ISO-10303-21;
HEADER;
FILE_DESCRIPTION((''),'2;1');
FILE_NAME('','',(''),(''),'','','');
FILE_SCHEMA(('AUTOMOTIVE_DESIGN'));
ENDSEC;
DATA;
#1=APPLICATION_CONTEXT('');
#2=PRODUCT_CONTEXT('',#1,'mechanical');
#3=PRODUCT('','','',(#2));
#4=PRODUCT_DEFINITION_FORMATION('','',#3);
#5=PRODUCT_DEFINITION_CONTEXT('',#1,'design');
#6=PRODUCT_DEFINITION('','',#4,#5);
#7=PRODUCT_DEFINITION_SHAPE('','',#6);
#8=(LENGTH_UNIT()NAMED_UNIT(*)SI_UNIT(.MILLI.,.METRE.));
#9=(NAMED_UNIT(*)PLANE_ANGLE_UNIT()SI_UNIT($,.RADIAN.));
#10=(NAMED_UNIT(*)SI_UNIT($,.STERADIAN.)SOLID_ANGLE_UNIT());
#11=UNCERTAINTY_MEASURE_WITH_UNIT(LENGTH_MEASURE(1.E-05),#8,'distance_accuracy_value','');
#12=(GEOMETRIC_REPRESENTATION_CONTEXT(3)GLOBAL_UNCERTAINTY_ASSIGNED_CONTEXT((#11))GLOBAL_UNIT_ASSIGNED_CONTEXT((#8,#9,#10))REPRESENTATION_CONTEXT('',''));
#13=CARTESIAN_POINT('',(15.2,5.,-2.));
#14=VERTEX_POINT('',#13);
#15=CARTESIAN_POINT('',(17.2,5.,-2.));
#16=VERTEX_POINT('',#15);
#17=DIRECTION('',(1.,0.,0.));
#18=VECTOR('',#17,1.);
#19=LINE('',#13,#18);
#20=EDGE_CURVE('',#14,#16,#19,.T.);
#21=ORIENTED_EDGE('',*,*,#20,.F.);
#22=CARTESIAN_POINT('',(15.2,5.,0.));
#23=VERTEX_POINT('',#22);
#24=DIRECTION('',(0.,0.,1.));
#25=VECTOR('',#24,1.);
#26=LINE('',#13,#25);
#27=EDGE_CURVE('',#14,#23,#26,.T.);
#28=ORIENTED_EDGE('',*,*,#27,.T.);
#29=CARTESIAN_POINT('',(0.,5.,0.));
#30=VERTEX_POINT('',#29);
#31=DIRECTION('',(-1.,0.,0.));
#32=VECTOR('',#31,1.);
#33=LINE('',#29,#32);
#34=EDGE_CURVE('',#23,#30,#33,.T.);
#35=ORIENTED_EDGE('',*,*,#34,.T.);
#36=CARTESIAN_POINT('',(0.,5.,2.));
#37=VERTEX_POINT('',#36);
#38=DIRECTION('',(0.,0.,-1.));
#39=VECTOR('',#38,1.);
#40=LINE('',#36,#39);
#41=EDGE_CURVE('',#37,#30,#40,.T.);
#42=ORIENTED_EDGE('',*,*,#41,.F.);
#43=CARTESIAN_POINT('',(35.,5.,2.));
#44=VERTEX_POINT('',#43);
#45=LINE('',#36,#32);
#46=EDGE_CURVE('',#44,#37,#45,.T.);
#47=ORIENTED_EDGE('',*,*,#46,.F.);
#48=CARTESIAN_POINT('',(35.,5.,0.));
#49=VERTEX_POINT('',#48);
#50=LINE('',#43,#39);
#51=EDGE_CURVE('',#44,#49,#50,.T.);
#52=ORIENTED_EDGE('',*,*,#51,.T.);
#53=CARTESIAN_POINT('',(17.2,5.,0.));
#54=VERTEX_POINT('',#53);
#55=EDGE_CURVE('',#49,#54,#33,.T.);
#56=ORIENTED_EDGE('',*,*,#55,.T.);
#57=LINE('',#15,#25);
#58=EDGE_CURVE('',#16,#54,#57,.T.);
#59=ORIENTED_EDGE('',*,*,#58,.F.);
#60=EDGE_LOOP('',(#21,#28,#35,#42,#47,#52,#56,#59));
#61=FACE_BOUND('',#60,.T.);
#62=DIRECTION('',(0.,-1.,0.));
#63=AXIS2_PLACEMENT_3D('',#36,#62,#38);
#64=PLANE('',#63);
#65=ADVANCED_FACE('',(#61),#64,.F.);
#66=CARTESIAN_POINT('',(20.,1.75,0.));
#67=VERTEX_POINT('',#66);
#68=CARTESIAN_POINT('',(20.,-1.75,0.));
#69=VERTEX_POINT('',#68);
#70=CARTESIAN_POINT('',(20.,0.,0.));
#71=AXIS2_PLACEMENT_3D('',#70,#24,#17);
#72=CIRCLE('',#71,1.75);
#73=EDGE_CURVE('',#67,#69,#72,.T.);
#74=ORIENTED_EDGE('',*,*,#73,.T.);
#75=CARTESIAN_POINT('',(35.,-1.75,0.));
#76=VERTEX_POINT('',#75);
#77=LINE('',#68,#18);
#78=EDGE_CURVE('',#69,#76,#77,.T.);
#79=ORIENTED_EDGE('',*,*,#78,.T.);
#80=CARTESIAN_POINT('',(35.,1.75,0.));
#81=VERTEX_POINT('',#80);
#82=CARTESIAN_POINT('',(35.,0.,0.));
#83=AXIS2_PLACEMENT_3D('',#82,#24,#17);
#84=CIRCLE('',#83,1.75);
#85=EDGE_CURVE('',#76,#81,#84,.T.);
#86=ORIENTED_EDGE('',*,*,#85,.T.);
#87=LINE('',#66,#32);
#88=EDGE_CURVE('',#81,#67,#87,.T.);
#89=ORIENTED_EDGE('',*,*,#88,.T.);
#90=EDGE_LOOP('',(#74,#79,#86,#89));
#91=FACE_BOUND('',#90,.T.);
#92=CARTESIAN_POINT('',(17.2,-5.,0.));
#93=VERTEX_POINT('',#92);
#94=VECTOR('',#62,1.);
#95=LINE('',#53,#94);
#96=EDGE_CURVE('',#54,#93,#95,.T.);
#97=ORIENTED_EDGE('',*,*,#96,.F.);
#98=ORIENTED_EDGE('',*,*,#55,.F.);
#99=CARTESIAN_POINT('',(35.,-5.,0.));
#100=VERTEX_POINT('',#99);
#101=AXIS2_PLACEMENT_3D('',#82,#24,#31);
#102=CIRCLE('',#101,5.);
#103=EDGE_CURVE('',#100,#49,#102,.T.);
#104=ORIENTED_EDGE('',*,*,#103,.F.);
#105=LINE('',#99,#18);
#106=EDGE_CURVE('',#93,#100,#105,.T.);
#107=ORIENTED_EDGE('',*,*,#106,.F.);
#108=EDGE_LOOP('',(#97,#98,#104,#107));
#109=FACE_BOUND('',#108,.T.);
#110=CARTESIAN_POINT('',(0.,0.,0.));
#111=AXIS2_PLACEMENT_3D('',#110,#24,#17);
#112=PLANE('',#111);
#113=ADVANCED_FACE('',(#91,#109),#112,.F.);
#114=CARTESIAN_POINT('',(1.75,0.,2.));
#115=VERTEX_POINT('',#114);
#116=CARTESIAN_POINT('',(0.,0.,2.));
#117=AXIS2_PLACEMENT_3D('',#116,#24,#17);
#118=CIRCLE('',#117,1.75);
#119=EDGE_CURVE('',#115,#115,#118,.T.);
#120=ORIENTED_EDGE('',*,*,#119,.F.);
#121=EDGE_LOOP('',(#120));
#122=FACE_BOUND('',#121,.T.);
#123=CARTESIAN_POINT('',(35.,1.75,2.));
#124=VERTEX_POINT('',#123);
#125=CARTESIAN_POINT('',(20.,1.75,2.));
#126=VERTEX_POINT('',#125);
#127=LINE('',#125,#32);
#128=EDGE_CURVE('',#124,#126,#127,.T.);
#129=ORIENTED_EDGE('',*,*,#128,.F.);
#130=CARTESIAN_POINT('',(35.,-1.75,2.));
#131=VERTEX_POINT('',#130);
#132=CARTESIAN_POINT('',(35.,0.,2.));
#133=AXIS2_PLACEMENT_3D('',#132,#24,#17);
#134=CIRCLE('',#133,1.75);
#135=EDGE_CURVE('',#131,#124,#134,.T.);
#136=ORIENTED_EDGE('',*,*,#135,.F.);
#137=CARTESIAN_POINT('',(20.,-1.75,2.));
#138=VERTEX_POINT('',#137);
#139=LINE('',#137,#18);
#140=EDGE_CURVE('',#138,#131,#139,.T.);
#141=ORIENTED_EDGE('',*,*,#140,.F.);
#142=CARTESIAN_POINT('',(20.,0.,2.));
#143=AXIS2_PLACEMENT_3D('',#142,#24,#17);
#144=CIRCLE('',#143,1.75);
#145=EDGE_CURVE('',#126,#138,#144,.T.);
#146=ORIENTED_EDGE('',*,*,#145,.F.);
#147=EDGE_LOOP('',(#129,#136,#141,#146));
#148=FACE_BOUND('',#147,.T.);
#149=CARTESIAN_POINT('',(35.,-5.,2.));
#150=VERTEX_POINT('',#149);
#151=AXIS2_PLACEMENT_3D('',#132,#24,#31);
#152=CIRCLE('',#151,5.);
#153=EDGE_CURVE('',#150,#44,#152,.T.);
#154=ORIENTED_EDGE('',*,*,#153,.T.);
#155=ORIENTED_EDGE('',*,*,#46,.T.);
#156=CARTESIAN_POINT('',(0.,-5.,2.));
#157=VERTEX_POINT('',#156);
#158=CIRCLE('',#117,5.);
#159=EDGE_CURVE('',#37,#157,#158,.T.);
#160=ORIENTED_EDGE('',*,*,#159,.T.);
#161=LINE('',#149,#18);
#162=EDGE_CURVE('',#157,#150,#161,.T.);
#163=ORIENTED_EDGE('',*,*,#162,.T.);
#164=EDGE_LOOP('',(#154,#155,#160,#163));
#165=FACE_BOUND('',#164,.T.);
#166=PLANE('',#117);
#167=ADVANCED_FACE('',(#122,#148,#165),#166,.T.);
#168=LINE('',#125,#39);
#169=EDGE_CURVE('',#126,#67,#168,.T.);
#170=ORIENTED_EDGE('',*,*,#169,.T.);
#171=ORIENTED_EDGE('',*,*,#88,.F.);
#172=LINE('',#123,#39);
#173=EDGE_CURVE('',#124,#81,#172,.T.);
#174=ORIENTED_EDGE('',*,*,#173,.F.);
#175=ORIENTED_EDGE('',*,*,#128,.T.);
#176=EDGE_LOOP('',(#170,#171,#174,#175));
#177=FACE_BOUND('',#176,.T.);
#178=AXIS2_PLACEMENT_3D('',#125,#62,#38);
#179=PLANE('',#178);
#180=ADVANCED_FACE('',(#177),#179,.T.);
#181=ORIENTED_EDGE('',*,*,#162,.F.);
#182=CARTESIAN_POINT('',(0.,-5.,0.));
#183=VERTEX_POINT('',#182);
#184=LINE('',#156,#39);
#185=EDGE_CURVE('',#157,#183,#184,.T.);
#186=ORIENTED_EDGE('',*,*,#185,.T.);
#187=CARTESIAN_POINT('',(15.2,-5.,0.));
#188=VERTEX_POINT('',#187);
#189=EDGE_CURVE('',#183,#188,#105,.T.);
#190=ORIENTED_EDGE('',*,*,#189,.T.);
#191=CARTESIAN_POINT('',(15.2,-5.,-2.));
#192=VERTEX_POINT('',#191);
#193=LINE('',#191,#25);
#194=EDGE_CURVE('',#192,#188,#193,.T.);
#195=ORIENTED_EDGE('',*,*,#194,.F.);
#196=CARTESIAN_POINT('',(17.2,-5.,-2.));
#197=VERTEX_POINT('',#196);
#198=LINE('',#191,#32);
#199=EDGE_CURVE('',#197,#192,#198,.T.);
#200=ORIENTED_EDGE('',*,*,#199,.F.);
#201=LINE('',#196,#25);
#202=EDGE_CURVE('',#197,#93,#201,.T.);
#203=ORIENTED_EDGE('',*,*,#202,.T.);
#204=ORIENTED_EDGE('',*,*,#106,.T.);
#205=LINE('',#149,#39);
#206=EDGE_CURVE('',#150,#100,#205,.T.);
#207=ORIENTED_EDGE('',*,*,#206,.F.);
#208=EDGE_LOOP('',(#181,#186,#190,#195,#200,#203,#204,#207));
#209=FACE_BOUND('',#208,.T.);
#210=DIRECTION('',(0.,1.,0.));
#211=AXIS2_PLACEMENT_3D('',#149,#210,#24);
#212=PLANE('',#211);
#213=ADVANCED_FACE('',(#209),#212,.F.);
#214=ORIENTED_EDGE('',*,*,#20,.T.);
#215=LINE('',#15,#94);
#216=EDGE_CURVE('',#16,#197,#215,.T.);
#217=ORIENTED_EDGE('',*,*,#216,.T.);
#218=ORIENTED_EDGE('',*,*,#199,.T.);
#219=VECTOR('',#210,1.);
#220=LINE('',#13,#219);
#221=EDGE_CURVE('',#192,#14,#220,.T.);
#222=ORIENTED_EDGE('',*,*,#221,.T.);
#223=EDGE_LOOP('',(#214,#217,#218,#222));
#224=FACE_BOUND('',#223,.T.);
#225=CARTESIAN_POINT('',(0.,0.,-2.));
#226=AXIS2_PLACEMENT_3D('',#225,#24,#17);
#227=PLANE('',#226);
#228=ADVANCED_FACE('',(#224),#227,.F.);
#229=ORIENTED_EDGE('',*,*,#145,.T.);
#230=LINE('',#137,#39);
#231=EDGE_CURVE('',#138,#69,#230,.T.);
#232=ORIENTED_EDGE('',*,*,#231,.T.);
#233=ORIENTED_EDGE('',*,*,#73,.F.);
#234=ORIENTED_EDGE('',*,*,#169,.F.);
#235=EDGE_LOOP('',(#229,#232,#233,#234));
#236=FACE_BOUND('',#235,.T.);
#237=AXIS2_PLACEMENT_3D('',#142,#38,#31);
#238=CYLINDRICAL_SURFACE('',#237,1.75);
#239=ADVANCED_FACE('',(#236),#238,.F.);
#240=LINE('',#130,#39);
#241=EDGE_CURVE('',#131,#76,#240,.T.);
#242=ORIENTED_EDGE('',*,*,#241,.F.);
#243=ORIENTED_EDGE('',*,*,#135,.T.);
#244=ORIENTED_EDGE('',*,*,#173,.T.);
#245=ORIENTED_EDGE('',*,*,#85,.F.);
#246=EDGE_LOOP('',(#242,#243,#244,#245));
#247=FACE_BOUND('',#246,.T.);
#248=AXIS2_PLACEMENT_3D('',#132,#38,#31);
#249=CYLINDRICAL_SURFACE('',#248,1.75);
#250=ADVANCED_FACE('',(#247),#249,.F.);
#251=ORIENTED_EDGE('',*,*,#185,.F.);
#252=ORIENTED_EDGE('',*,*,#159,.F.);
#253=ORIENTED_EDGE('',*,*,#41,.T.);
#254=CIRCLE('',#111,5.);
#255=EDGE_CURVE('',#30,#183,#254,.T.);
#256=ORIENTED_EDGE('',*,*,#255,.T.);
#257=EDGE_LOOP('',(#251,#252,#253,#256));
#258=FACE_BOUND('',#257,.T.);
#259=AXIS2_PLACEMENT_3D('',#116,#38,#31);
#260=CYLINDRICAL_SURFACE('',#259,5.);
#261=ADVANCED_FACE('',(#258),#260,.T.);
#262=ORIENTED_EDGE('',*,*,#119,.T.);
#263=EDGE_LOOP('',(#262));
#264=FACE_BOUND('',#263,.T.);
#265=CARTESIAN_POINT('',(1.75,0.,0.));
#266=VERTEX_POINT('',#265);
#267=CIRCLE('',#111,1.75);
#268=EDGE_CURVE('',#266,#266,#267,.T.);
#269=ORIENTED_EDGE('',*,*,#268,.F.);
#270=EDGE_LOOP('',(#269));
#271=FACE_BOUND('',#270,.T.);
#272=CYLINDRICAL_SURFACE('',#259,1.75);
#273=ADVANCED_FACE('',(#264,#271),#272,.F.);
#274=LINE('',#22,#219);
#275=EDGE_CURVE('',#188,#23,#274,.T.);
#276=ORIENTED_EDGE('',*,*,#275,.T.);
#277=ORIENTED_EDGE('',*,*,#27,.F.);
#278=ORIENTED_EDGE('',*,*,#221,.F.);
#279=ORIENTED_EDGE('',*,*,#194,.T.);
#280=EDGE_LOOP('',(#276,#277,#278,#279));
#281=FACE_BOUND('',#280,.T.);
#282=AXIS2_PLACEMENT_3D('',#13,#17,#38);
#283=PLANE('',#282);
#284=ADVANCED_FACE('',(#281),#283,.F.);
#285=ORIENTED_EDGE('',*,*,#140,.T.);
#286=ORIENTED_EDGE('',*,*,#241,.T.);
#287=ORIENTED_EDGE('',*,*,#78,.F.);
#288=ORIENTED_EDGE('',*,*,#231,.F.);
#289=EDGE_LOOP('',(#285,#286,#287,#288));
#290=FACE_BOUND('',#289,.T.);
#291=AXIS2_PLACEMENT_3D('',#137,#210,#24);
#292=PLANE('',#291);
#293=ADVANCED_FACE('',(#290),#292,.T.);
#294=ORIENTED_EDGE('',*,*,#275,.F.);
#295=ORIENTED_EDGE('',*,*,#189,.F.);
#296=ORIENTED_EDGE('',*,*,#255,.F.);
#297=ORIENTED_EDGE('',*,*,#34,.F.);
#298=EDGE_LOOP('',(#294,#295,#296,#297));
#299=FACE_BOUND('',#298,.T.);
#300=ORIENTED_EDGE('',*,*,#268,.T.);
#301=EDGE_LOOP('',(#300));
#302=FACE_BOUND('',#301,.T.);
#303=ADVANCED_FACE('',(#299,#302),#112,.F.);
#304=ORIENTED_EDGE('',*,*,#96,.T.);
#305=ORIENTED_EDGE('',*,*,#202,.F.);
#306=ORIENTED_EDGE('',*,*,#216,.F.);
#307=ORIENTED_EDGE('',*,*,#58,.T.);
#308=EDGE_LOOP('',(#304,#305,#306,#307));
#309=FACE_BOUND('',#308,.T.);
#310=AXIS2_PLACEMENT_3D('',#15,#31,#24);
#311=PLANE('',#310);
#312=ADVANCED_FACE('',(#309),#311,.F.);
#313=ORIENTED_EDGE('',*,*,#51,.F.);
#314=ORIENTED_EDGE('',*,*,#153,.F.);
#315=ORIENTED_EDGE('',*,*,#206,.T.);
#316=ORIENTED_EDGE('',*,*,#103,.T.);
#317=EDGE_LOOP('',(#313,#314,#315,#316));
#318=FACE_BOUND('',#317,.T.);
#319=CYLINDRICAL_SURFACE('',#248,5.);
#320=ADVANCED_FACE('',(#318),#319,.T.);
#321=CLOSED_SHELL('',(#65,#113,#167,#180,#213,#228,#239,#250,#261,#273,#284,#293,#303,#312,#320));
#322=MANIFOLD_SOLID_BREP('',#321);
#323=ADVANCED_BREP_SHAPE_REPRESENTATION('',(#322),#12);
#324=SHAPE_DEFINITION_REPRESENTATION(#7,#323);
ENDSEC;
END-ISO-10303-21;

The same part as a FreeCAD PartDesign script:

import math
import FreeCAD as App
import Part
import Sketcher

V = App.Vector

doc = App.newDocument("Part")
params = doc.addObject("Spreadsheet::Sheet", "Params")
for row, (alias, value) in enumerate([
    ("sketch1_radius", "5 mm"),
    ("sketch1_diameter", "3.5 mm"),
    ("sketch1_width", "35 mm"),
    ("sketch1_width2", "15 mm"),
    ("pad1_length", "2 mm"),
    ("sketch2_width", "2 mm"),
    ("sketch2_height", "10 mm"),
    ("pad2_length", "2 mm"),
], start=1):
    params.set(f"A{row}", alias)
    params.set(f"B{row}", "=" + value)
    params.setAlias(f"B{row}", alias)

body = doc.addObject("PartDesign::Body", "Body")

sketch1 = body.newObject("Sketcher::SketchObject", "Sketch")
sketch1.AttachmentSupport = (doc.getObject("XY_Plane"), [""])
sketch1.MapMode = "FlatFace"
sketch1.addGeometry([
    Part.LineSegment(V(35, 5, 0), V(0, 5, 0)),
    Part.ArcOfCircle(Part.Circle(V(0, 0, 0), V(0, 0, 1), 5), math.radians(90), math.radians(270)),
    Part.LineSegment(V(0, -5, 0), V(35, -5, 0)),
    Part.ArcOfCircle(Part.Circle(V(35, 0, 0), V(0, 0, 1), 5), math.radians(-90), math.radians(90)),
    Part.LineSegment(V(20, 1.8, 0), V(35, 1.8, 0)),
    Part.ArcOfCircle(Part.Circle(V(35, 0, 0), V(0, 0, 1), 1.8), math.radians(-90), math.radians(90)),
    Part.LineSegment(V(35, -1.8, 0), V(20, -1.8, 0)),
    Part.ArcOfCircle(Part.Circle(V(20, 0, 0), V(0, 0, 1), 1.8), math.radians(90), math.radians(270)),
    Part.Circle(V(0, 0, 0), V(0, 0, 1), 1.8),
], False)
sketch1.addConstraint([
    Sketcher.Constraint("Tangent", 0, 2, 1, 1),
    Sketcher.Constraint("Tangent", 1, 2, 2, 1),
    Sketcher.Constraint("Tangent", 2, 2, 3, 1),
    Sketcher.Constraint("Tangent", 3, 2, 0, 1),
    Sketcher.Constraint("Tangent", 4, 2, 5, 2),
    Sketcher.Constraint("Tangent", 5, 1, 6, 1),
    Sketcher.Constraint("Tangent", 6, 2, 7, 2),
    Sketcher.Constraint("Tangent", 7, 1, 4, 1),
    Sketcher.Constraint("Horizontal", 0),
    Sketcher.Constraint("Horizontal", 2),
    Sketcher.Constraint("Horizontal", 4),
    Sketcher.Constraint("Horizontal", 6),
    Sketcher.Constraint("Coincident", 1, 3, -1, 1),
    Sketcher.Constraint("Coincident", 8, 3, -1, 1),
    Sketcher.Constraint("Coincident", 5, 3, 3, 3),
    Sketcher.Constraint("Equal", 7, 8),
    Sketcher.Constraint("Radius", 1, 5.0),
    Sketcher.Constraint("Diameter", 8, 3.5),
    Sketcher.Constraint("DistanceX", 0, 2, 0, 1, 35.0),
    Sketcher.Constraint("DistanceX", 4, 1, 4, 2, 15.0),
])
sketch1.setExpression("Constraints[16]", "Params.sketch1_radius")
sketch1.setExpression("Constraints[17]", "Params.sketch1_diameter")
sketch1.setExpression("Constraints[18]", "Params.sketch1_width")
sketch1.setExpression("Constraints[19]", "Params.sketch1_width2")
pad1 = body.newObject("PartDesign::Pad", "Pad")
pad1.Profile = sketch1
pad1.setExpression("Length", "Params.pad1_length")

sketch2 = body.newObject("Sketcher::SketchObject", "Sketch001")
sketch2.AttachmentSupport = (doc.getObject("XY_Plane"), [""])
sketch2.MapMode = "FlatFace"
sketch2.addGeometry([
    Part.LineSegment(V(17.2, 5, 0), V(17.2, -5, 0)),
    Part.LineSegment(V(17.2, -5, 0), V(15.2, -5, 0)),
    Part.LineSegment(V(15.2, -5, 0), V(15.2, 5, 0)),
    Part.LineSegment(V(15.2, 5, 0), V(17.2, 5, 0)),
], False)
sketch2.addConstraint([
    Sketcher.Constraint("Coincident", 0, 2, 1, 1),
    Sketcher.Constraint("Coincident", 1, 2, 2, 1),
    Sketcher.Constraint("Coincident", 2, 2, 3, 1),
    Sketcher.Constraint("Coincident", 3, 2, 0, 1),
    Sketcher.Constraint("Vertical", 0),
    Sketcher.Constraint("Horizontal", 1),
    Sketcher.Constraint("Vertical", 2),
    Sketcher.Constraint("Horizontal", 3),
    Sketcher.Constraint("DistanceX", 1, 2, 1, 1, 2.0),
    Sketcher.Constraint("DistanceY", 0, 2, 0, 1, 10.0),
    Sketcher.Constraint("DistanceY", 0, 2, -1, 1, 5.0),
    Sketcher.Constraint("DistanceX", -1, 1, 0, 2, 17.2),
])
sketch2.setExpression("Constraints[8]", "Params.sketch2_width")
sketch2.setExpression("Constraints[9]", "Params.sketch2_height")
pad2 = body.newObject("PartDesign::Pad", "Pad001")
pad2.Profile = sketch2
pad2.setExpression("Length", "Params.pad2_length")
pad2.Reversed = True

doc.recompute()
